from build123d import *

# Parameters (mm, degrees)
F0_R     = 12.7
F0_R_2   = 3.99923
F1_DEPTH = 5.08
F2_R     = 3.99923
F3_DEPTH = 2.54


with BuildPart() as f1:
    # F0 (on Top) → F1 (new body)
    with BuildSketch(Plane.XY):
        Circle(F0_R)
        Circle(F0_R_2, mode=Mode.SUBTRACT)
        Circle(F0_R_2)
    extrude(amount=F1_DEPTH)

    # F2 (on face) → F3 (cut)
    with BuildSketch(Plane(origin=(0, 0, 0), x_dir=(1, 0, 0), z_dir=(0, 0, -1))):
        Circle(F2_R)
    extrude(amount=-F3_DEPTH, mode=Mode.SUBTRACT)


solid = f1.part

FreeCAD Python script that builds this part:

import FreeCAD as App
import Part
import Sketcher
Q = App.Units.Quantity

doc = App.newDocument("Part")
params = doc.addObject("Spreadsheet::Sheet", "Params")
for row, (alias, value) in enumerate([
    ("sketch1_diameter", "1 in"),
    ("pad1_length", "0.2 in"),
    ("pocket1_length", "0.1 in"),
], start=1):
    params.set(f"A{row}", alias)
    params.set(f"B{row}", "=" + value)
    params.setAlias(f"B{row}", alias)

body = doc.addObject("PartDesign::Body", "Body")

sketch1 = doc.addObject("Sketcher::SketchObject", "Sketch")
body.addObject(sketch1)
sketch1.AttachmentSupport = (doc.XY_Plane, [""])
sketch1.MapMode = "FlatFace"
sketch1.addGeometry(Part.Circle(App.Vector(0, 0, 0), App.Vector(0, 0, 1), 13), False)
sketch1.addConstraint(Sketcher.Constraint("Coincident", 0, 3, -1, 1))
sketch1.addConstraint(Sketcher.Constraint("Diameter", 0, Q("1 in")))
sketch1.setExpression("Constraints[1]", "Params.sketch1_diameter")
pad1 = doc.addObject("PartDesign::Pad", "Pad")
body.addObject(pad1)
pad1.Profile = sketch1
pad1.setExpression("Length", "Params.pad1_length")

sketch2 = doc.addObject("Sketcher::SketchObject", "Sketch001")
body.addObject(sketch2)
sketch2.AttachmentSupport = (doc.XY_Plane, [""])
sketch2.MapMode = "FlatFace"
sketch2.addGeometry(Part.Circle(App.Vector(0, 0, 0), App.Vector(0, 0, 1), 4), False)
sketch2.addConstraint(Sketcher.Constraint("Coincident", 0, 3, -1, 1))
sketch2.addConstraint(Sketcher.Constraint("Diameter", 0, Q("0.3149 in")))
pocket1 = doc.addObject("PartDesign::Pocket", "Pocket")
body.addObject(pocket1)
pocket1.Profile = sketch2
pocket1.setExpression("Length", "Params.pocket1_length")
pocket1.Reversed = True

doc.recompute()
